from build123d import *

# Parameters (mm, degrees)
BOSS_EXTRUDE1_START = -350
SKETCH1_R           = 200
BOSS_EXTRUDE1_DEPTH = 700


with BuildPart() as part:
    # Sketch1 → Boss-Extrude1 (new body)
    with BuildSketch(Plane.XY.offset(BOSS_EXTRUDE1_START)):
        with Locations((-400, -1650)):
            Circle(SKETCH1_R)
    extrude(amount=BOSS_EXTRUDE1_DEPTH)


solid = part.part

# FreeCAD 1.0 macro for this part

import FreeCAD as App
import Part
import Sketcher
Q = App.Units.Quantity

doc = App.newDocument("Part")
body = doc.addObject("PartDesign::Body", "Body")

# Sketch on XY plane
sketch1 = body.newObject("Sketcher::SketchObject", "Sketch")
sketch1.AttachmentSupport = (doc.getObject("XY_Plane"), [""])
sketch1.MapMode = "FlatFace"
sketch1.AttachmentOffset = App.Placement(App.Vector(0, 0, -350), App.Rotation())
sketch1.addGeometry(Part.Circle(App.Vector(-400, -1650, 0), App.Vector(0, 0, 1), 200), False)
sketch1.addConstraint([
    Sketcher.Constraint("Diameter", 0, Q("400 mm")),
    Sketcher.Constraint("DistanceX", 0, 3, -1, 1, Q("400 mm")),
    Sketcher.Constraint("DistanceY", 0, 3, -1, 1, Q("1650 mm")),
])
pad1 = body.newObject("PartDesign::Pad", "Pad")
pad1.Profile = sketch1
pad1.Length = 700

doc.recompute()
